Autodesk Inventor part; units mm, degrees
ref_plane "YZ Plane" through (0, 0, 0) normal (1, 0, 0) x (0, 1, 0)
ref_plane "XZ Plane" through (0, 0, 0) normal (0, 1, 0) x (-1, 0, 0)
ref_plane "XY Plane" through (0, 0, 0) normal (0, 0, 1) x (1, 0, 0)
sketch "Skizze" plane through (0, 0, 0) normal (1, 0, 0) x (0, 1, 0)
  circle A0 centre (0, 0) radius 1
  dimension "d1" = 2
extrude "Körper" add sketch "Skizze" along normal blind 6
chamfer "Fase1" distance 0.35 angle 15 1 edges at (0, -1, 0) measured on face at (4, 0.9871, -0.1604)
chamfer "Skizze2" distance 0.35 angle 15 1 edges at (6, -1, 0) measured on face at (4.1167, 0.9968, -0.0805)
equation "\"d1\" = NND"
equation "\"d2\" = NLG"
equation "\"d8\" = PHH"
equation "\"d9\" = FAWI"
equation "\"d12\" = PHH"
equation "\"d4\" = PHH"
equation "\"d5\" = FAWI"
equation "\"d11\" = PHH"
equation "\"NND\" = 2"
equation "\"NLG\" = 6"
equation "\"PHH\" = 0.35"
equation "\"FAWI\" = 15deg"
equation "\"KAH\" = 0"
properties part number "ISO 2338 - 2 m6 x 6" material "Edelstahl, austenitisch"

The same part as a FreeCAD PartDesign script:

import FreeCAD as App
import Part
import Sketcher
from FreeCAD import Vector
Q = App.Units.Quantity


def edges_at(feature, points):
    """Names of the edges that pass closest to the given points."""
    edges = feature.Shape.Edges
    near = lambda p: min(range(len(edges)), key=lambda i: edges[i].distToShape(Part.Vertex(*p))[0])
    return sorted({f"Edge{near(p) + 1}" for p in points})

doc = App.newDocument("Part")
body = doc.addObject("PartDesign::Body", "Body")

# Sketch on YZ plane
sketch1 = doc.addObject("Sketcher::SketchObject", "Sketch")
body.addObject(sketch1)
sketch1.AttachmentSupport = (doc.YZ_Plane, [""])
sketch1.MapMode = "FlatFace"
sketch1.addGeometry(Part.Circle(Vector(0, 0, 0), Vector(0, 0, 1), 1), False)
sketch1.addConstraint([
    Sketcher.Constraint("Coincident", 0, 3, -1, 1),
    Sketcher.Constraint("Diameter", 0, Q("2 mm")),
])
pad1 = doc.addObject("PartDesign::Pad", "Pad")
body.addObject(pad1)
pad1.Profile = sketch1
pad1.Length = 6
doc.recompute()

chamfer = doc.addObject("PartDesign::Chamfer", "Chamfer")
body.addObject(chamfer)
chamfer.Base = (pad1, edges_at(pad1, [(0, -1, 0)]))
chamfer.ChamferType = "Distance and Angle"
chamfer.Size = 0.35
chamfer.Angle = 15
doc.recompute()

chamfer2 = doc.addObject("PartDesign::Chamfer", "Chamfer001")
body.addObject(chamfer2)
chamfer2.Base = (chamfer, edges_at(chamfer, [(6, -1, 0)]))
chamfer2.ChamferType = "Distance and Angle"
chamfer2.Size = 0.35
chamfer2.Angle = 15

doc.recompute()
